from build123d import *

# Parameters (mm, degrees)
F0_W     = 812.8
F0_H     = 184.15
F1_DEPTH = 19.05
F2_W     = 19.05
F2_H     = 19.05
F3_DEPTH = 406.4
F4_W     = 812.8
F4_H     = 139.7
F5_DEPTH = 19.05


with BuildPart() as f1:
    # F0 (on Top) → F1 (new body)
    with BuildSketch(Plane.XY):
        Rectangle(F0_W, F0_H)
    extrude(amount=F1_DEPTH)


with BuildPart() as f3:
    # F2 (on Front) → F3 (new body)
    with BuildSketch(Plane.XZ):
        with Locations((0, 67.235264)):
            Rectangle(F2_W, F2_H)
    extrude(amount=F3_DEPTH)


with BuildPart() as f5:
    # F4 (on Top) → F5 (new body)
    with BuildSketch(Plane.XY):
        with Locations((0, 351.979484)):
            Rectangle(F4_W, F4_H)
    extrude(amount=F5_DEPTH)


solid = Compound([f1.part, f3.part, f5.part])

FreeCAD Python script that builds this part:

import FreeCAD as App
import Part
import Sketcher

V = App.Vector
Q = App.Units.Quantity


def add_polygon(sketch, points):
    """Adds a closed chain of lines whose ends are joined by coincident constraints."""
    first, n = sketch.GeometryCount, len(points)
    for a, b in zip(points, points[1:] + points[:1]):
        sketch.addGeometry(Part.LineSegment(App.Vector(*a, 0), App.Vector(*b, 0)), False)
    for i in range(n):
        sketch.addConstraint(Sketcher.Constraint("Coincident", first + i, 2, first + (i + 1) % n, 1))

doc = App.newDocument("Part")
params = doc.addObject("Spreadsheet::Sheet", "Params")
for row, (alias, value) in enumerate([
    ("sketch1_width", "32 in"),
    ("sketch1_height", "7.25 in"),
    ("pad1_length", "0.75 in"),
    ("sketch2_width", "0.75 in"),
    ("pad2_length", "16 in"),
    ("sketch3_width", "32 in"),
    ("sketch3_height", "5.5 in"),
    ("pad3_length", "0.75 in"),
], start=1):
    params.set(f"A{row}", alias)
    params.set(f"B{row}", "=" + value)
    params.setAlias(f"B{row}", alias)

body = doc.addObject("PartDesign::Body", "Body")

# Sketch on XY plane
sketch1 = body.newObject("Sketcher::SketchObject", "Sketch")
sketch1.AttachmentSupport = (doc.getObject("XY_Plane"), [""])
sketch1.MapMode = "FlatFace"
add_polygon(sketch1, [(-406.4, 92.075), (-406.4, -92.075), (406.4, -92.075), (406.4, 92.075)])  # lines 0-3
sketch1.addConstraint([
    Sketcher.Constraint("Vertical", 0),
    Sketcher.Constraint("Horizontal", 1),
    Sketcher.Constraint("Vertical", 2),
    Sketcher.Constraint("Horizontal", 3),
    Sketcher.Constraint("Symmetric", 0, 2, 2, 2, -1, 1),
    Sketcher.Constraint("DistanceX", 1, 1, 1, 2, Q("32 in")),
    Sketcher.Constraint("DistanceY", 0, 2, 0, 1, Q("7.25 in")),
])
sketch1.setExpression("Constraints[9]", "Params.sketch1_width")
sketch1.setExpression("Constraints[10]", "Params.sketch1_height")
pad1 = body.newObject("PartDesign::Pad", "Pad")
pad1.Profile = sketch1
pad1.setExpression("Length", "Params.pad1_length")
body2 = doc.addObject("PartDesign::Body", "Body001")

# Sketch on XZ plane
sketch2 = body2.newObject("Sketcher::SketchObject", "Sketch001")
sketch2.AttachmentSupport = (doc.getObject("XZ_Plane001"), [""])
sketch2.MapMode = "FlatFace"
add_polygon(sketch2, [(-9.525, 76.760264), (-9.525, 57.710264), (9.525, 57.710264), (9.525, 76.760264)])  # lines 0-3
sketch2.addConstraint([
    Sketcher.Constraint("Vertical", 0),
    Sketcher.Constraint("Horizontal", 1),
    Sketcher.Constraint("Vertical", 2),
    Sketcher.Constraint("Horizontal", 3),
    Sketcher.Constraint("Equal", 3, 0),
    Sketcher.Constraint("DistanceX", 1, 1, 1, 2, Q("0.75 in")),
    Sketcher.Constraint("DistanceX", 0, 2, -1, 1, Q("0.375 in")),
    Sketcher.Constraint("DistanceY", -1, 1, 0, 2, Q("57.710264 mm")),
])
sketch2.setExpression("Constraints[9]", "Params.sketch2_width")
pad2 = body2.newObject("PartDesign::Pad", "Pad001")
pad2.Profile = sketch2
pad2.setExpression("Length", "Params.pad2_length")
body3 = doc.addObject("PartDesign::Body", "Body002")

# Sketch on XY plane
sketch3 = body3.newObject("Sketcher::SketchObject", "Sketch002")
sketch3.AttachmentSupport = (doc.getObject("XY_Plane002"), [""])
sketch3.MapMode = "FlatFace"
add_polygon(sketch3, [(-406.4, 421.829484), (-406.4, 282.129484), (406.4, 282.129484), (406.4, 421.829484)])  # lines 0-3
sketch3.addConstraint([
    Sketcher.Constraint("Vertical", 0),
    Sketcher.Constraint("Horizontal", 1),
    Sketcher.Constraint("Vertical", 2),
    Sketcher.Constraint("Horizontal", 3),
    Sketcher.Constraint("DistanceX", 1, 1, 1, 2, Q("32 in")),
    Sketcher.Constraint("DistanceY", 0, 2, 0, 1, Q("5.5 in")),
    Sketcher.Constraint("DistanceX", 0, 2, -1, 1, Q("16 in")),
    Sketcher.Constraint("DistanceY", -1, 1, 0, 2, Q("282.129484 mm")),
])
sketch3.setExpression("Constraints[8]", "Params.sketch3_width")
sketch3.setExpression("Constraints[9]", "Params.sketch3_height")
pad3 = body3.newObject("PartDesign::Pad", "Pad002")
pad3.Profile = sketch3
pad3.setExpression("Length", "Params.pad3_length")

doc.recompute()
